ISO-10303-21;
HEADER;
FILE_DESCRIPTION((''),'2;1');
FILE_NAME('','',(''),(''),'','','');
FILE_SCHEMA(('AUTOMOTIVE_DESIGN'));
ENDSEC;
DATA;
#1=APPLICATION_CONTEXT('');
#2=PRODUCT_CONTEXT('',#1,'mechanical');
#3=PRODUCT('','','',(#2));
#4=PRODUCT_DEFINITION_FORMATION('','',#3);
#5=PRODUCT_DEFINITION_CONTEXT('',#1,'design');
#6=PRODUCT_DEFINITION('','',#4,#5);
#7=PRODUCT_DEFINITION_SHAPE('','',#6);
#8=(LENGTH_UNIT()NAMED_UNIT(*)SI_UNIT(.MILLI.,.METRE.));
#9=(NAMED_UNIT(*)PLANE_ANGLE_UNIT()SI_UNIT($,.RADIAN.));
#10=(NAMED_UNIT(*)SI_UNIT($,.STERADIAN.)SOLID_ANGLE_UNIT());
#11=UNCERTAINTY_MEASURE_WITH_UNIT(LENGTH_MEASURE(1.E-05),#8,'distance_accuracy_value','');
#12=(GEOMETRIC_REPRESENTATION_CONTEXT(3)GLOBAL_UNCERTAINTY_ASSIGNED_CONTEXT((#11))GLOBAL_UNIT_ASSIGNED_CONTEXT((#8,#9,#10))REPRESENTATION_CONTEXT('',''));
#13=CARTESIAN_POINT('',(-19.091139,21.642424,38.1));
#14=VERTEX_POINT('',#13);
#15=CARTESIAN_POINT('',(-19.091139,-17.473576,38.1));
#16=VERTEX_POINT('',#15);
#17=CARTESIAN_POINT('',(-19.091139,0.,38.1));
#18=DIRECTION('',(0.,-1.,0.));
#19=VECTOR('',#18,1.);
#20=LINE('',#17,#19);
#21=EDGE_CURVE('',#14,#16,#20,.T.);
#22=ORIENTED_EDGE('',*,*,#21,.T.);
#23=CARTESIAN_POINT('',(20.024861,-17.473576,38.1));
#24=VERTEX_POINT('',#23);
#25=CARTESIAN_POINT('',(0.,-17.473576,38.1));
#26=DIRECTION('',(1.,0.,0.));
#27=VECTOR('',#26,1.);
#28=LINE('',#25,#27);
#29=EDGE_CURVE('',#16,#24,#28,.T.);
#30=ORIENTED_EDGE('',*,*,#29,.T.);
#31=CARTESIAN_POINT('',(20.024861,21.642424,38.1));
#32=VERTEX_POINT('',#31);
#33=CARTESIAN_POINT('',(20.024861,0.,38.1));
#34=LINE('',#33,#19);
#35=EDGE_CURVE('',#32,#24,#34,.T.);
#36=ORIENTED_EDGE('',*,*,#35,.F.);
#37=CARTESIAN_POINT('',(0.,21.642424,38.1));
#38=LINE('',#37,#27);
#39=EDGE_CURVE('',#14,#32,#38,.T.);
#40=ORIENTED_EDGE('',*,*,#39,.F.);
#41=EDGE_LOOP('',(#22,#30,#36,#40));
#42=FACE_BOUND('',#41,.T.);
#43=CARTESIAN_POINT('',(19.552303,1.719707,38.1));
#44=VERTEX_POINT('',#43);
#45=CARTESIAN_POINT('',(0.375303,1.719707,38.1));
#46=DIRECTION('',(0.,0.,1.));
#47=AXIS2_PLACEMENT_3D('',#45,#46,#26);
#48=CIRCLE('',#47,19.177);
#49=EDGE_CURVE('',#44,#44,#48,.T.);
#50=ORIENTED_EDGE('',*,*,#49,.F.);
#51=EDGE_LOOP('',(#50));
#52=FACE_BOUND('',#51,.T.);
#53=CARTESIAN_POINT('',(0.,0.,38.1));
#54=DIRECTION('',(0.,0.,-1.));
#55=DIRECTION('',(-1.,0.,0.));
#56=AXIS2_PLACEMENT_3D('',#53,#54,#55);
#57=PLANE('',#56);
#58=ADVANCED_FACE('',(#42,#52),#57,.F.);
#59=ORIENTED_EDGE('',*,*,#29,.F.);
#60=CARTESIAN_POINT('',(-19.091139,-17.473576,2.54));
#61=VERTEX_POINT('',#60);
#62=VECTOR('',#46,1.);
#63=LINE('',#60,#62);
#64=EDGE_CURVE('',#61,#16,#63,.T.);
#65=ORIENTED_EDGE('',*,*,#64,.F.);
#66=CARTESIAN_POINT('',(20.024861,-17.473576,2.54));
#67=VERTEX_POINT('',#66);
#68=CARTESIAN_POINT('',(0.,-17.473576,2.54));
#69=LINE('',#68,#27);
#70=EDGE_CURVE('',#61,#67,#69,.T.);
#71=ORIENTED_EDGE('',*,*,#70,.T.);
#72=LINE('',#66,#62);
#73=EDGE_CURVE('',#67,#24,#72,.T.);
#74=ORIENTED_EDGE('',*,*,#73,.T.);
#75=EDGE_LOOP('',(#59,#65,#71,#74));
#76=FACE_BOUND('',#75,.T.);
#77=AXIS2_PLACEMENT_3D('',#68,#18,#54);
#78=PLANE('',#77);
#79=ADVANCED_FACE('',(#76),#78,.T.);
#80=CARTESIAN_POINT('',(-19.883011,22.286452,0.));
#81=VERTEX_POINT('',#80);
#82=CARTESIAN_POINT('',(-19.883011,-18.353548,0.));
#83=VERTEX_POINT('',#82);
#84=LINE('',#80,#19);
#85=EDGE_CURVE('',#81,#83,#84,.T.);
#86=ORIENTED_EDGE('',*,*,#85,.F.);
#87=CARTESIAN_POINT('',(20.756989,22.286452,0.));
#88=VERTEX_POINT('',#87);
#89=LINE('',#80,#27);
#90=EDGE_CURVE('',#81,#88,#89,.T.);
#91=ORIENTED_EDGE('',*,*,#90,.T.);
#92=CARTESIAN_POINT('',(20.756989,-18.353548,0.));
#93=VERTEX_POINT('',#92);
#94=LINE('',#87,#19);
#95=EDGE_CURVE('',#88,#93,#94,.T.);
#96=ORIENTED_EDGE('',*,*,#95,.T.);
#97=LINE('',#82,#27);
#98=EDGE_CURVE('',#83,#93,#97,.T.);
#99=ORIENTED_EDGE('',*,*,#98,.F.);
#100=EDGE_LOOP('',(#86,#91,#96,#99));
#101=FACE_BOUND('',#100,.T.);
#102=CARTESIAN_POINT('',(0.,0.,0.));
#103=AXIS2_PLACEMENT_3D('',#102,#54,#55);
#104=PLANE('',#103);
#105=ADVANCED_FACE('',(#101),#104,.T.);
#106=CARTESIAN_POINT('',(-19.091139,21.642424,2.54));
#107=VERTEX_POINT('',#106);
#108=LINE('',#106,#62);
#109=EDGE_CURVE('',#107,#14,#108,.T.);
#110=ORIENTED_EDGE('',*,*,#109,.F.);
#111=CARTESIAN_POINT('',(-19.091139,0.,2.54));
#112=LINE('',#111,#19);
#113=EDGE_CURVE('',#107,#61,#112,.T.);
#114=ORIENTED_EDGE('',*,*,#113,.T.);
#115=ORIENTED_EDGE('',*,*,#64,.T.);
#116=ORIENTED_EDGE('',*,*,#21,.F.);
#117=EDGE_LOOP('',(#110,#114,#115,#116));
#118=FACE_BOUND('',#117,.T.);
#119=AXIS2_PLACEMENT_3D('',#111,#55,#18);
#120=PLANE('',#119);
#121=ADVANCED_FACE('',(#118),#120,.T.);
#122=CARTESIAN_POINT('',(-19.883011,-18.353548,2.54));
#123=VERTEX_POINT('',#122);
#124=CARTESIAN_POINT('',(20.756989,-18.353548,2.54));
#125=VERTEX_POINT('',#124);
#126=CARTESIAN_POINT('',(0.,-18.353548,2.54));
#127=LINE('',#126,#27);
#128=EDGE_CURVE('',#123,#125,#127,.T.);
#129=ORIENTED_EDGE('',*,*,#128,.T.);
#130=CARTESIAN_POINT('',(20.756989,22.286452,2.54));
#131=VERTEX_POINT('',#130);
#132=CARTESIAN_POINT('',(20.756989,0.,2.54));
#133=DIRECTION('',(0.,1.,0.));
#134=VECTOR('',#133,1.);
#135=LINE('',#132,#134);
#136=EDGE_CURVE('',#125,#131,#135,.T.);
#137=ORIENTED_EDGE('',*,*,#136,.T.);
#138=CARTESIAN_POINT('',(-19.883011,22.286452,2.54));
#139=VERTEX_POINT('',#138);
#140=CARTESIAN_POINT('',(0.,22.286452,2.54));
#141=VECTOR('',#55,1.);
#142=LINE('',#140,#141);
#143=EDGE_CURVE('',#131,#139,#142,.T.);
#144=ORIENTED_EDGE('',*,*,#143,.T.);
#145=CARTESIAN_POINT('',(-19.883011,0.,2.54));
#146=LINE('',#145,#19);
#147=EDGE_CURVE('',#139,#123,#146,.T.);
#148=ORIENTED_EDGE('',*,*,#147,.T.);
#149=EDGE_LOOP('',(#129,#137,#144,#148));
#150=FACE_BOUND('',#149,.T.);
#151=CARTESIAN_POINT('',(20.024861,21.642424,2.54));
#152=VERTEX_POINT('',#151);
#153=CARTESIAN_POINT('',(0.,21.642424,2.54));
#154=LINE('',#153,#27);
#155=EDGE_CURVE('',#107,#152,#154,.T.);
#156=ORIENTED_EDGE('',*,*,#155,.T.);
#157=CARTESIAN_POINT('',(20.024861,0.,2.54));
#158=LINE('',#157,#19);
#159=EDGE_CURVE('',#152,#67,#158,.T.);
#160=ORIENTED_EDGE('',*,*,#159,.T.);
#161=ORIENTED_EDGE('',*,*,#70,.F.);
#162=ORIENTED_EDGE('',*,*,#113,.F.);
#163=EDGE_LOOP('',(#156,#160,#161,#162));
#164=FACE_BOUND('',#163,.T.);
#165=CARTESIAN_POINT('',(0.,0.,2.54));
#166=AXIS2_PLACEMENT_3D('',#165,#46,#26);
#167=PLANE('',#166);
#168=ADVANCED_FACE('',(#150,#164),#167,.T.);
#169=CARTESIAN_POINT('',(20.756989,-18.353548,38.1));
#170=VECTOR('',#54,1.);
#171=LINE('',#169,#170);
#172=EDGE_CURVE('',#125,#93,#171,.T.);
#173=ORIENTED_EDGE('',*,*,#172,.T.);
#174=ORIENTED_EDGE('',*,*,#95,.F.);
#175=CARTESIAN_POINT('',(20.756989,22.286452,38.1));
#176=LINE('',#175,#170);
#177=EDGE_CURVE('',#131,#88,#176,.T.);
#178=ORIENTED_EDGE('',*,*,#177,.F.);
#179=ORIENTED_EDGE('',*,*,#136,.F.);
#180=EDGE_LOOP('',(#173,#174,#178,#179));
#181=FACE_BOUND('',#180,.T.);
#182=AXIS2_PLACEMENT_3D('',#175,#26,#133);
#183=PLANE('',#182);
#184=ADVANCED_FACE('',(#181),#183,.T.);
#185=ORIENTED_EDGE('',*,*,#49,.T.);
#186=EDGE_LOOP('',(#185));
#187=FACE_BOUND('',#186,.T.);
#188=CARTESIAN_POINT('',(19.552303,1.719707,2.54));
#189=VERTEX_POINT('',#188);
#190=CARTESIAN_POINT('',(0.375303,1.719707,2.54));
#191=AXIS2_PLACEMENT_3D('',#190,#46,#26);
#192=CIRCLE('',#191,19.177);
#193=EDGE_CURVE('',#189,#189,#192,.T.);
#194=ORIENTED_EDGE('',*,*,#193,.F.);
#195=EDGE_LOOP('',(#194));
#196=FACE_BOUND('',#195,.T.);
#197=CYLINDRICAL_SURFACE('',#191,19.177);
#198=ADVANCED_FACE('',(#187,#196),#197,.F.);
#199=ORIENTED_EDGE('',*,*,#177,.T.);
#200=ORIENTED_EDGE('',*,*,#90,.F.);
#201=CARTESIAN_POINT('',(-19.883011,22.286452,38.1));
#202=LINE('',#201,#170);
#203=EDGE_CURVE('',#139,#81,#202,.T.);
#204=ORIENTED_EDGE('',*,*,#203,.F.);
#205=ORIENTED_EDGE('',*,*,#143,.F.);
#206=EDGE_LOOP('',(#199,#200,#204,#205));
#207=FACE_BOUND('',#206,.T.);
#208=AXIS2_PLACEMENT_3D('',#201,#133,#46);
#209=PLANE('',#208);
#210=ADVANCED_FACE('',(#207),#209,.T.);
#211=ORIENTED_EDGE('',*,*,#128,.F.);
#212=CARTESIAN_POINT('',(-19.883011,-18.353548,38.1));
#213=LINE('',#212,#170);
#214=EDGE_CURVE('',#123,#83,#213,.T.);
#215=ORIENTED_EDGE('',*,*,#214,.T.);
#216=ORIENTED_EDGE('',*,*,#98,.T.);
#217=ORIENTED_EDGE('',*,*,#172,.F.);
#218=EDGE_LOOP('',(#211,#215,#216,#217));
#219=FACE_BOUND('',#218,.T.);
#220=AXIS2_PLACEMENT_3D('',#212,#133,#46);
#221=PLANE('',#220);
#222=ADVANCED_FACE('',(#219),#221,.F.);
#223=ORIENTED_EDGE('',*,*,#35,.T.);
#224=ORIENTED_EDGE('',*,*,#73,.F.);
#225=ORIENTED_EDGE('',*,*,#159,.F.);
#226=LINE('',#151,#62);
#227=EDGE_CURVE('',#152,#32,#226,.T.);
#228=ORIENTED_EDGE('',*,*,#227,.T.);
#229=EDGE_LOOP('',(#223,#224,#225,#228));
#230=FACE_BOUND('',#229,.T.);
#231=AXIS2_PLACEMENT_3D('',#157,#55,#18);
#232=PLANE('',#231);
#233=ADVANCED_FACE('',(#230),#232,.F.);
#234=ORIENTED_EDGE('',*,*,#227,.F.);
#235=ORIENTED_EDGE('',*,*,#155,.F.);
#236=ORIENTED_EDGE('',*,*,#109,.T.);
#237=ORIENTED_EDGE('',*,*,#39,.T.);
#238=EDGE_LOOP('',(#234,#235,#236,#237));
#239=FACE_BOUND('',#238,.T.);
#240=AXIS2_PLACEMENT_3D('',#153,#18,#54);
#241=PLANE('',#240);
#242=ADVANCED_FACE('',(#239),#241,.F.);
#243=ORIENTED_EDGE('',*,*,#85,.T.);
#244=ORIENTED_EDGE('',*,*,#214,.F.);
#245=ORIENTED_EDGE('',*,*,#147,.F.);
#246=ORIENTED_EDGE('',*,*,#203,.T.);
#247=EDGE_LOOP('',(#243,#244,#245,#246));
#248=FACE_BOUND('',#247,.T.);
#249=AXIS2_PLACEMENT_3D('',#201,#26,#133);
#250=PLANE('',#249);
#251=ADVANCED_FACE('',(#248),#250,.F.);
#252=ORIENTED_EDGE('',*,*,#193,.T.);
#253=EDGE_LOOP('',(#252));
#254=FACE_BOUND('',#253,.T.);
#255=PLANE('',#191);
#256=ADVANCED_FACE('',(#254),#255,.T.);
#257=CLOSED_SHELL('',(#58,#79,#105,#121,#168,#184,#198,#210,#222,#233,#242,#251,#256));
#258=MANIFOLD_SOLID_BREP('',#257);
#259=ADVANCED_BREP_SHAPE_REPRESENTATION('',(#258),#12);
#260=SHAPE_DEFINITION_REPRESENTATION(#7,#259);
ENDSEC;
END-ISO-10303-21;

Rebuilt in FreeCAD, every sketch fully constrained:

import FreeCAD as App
import Part
import Sketcher
from FreeCAD import Vector
Q = App.Units.Quantity


def add_polygon(sketch, points):
    """Adds a closed chain of lines whose ends are joined by coincident constraints."""
    first, n = sketch.GeometryCount, len(points)
    for a, b in zip(points, points[1:] + points[:1]):
        sketch.addGeometry(Part.LineSegment(App.Vector(*a, 0), App.Vector(*b, 0)), False)
    for i in range(n):
        sketch.addConstraint(Sketcher.Constraint("Coincident", first + i, 2, first + (i + 1) % n, 1))

doc = App.newDocument("Part")
body = doc.addObject("PartDesign::Body", "Body")

# Sketch on XY plane
sketch1 = body.newObject("Sketcher::SketchObject", "Sketch")
sketch1.AttachmentSupport = (doc.getObject("XY_Plane"), [""])
sketch1.MapMode = "FlatFace"
add_polygon(sketch1, [(-20, 22), (-20, -18), (21, -18), (21, 22)])  # lines 0-3
sketch1.addConstraint(Sketcher.Constraint("Vertical", 0))
sketch1.addConstraint(Sketcher.Constraint("Horizontal", 1))
sketch1.addConstraint(Sketcher.Constraint("Vertical", 2))
sketch1.addConstraint(Sketcher.Constraint("Horizontal", 3))
sketch1.addConstraint(Sketcher.Constraint("Equal", 3, 0))
sketch1.addConstraint(Sketcher.Constraint("DistanceX", 1, 1, 1, 2, Q("1.6 in")))
sketch1.addConstraint(Sketcher.Constraint("DistanceX", 0, 2, -1, 1, Q("19.883011 mm")))
sketch1.addConstraint(Sketcher.Constraint("DistanceY", 0, 2, -1, 1, Q("18.353548 mm")))
pad1 = body.newObject("PartDesign::Pad", "Pad")
pad1.Profile = sketch1
pad1.Length = Q("1.5 in")

# Sketch on XY plane
sketch2 = body.newObject("Sketcher::SketchObject", "Sketch001")
sketch2.AttachmentSupport = (doc.getObject("XY_Plane"), [""])
sketch2.MapMode = "FlatFace"
sketch2.AttachmentOffset = App.Placement(Vector(0, 0, 1.5 * 25.4), App.Rotation())
add_polygon(sketch2, [(-20, 22), (-20, -18), (21, -18), (21, 22)])  # lines 0-3
add_polygon(sketch2, [(20, -17), (-19, -17), (-19, 22), (20, 22)])  # lines 4-7
sketch2.addConstraint(Sketcher.Constraint("Vertical", 0))
sketch2.addConstraint(Sketcher.Constraint("Horizontal", 1))
sketch2.addConstraint(Sketcher.Constraint("Vertical", 2))
sketch2.addConstraint(Sketcher.Constraint("Horizontal", 3))
sketch2.addConstraint(Sketcher.Constraint("Horizontal", 4))
sketch2.addConstraint(Sketcher.Constraint("Vertical", 5))
sketch2.addConstraint(Sketcher.Constraint("Horizontal", 6))
sketch2.addConstraint(Sketcher.Constraint("Vertical", 7))
sketch2.addConstraint(Sketcher.Constraint("Equal", 3, 0))
sketch2.addConstraint(Sketcher.Constraint("Equal", 6, 5))
sketch2.addConstraint(Sketcher.Constraint("DistanceX", 1, 1, 1, 2, Q("1.6 in")))
sketch2.addConstraint(Sketcher.Constraint("DistanceX", 4, 2, 4, 1, Q("1.54 in")))
sketch2.addConstraint(Sketcher.Constraint("DistanceX", 0, 2, -1, 1, Q("19.883011 mm")))
sketch2.addConstraint(Sketcher.Constraint("DistanceY", 0, 2, -1, 1, Q("18.353548 mm")))
sketch2.addConstraint(Sketcher.Constraint("DistanceX", 4, 2, -1, 1, Q("19.091139 mm")))
sketch2.addConstraint(Sketcher.Constraint("DistanceY", 4, 2, -1, 1, Q("17.473576 mm")))
pocket1 = body.newObject("PartDesign::Pocket", "Pocket")
pocket1.Profile = sketch2
pocket1.Length = Q("1.4 in")

# Sketch on XY plane
sketch3 = body.newObject("Sketcher::SketchObject", "Sketch002")
sketch3.AttachmentSupport = (doc.getObject("XY_Plane"), [""])
sketch3.MapMode = "FlatFace"
sketch3.AttachmentOffset = App.Placement(Vector(0, 0, 1.5 * 25.4), App.Rotation())
sketch3.addGeometry(Part.Circle(Vector(0, 2, 0), Vector(0, 0, 1), 19), False)
sketch3.addConstraint(Sketcher.Constraint("Diameter", 0, Q("1.51 in")))
sketch3.addConstraint(Sketcher.Constraint("DistanceX", -1, 1, 0, 3, Q("0.375303 mm")))
sketch3.addConstraint(Sketcher.Constraint("DistanceY", -1, 1, 0, 3, Q("1.719707 mm")))
pocket2 = body.newObject("PartDesign::Pocket", "Pocket001")
pocket2.Profile = sketch3
pocket2.Length = Q("1.4 in")

doc.recompute()
